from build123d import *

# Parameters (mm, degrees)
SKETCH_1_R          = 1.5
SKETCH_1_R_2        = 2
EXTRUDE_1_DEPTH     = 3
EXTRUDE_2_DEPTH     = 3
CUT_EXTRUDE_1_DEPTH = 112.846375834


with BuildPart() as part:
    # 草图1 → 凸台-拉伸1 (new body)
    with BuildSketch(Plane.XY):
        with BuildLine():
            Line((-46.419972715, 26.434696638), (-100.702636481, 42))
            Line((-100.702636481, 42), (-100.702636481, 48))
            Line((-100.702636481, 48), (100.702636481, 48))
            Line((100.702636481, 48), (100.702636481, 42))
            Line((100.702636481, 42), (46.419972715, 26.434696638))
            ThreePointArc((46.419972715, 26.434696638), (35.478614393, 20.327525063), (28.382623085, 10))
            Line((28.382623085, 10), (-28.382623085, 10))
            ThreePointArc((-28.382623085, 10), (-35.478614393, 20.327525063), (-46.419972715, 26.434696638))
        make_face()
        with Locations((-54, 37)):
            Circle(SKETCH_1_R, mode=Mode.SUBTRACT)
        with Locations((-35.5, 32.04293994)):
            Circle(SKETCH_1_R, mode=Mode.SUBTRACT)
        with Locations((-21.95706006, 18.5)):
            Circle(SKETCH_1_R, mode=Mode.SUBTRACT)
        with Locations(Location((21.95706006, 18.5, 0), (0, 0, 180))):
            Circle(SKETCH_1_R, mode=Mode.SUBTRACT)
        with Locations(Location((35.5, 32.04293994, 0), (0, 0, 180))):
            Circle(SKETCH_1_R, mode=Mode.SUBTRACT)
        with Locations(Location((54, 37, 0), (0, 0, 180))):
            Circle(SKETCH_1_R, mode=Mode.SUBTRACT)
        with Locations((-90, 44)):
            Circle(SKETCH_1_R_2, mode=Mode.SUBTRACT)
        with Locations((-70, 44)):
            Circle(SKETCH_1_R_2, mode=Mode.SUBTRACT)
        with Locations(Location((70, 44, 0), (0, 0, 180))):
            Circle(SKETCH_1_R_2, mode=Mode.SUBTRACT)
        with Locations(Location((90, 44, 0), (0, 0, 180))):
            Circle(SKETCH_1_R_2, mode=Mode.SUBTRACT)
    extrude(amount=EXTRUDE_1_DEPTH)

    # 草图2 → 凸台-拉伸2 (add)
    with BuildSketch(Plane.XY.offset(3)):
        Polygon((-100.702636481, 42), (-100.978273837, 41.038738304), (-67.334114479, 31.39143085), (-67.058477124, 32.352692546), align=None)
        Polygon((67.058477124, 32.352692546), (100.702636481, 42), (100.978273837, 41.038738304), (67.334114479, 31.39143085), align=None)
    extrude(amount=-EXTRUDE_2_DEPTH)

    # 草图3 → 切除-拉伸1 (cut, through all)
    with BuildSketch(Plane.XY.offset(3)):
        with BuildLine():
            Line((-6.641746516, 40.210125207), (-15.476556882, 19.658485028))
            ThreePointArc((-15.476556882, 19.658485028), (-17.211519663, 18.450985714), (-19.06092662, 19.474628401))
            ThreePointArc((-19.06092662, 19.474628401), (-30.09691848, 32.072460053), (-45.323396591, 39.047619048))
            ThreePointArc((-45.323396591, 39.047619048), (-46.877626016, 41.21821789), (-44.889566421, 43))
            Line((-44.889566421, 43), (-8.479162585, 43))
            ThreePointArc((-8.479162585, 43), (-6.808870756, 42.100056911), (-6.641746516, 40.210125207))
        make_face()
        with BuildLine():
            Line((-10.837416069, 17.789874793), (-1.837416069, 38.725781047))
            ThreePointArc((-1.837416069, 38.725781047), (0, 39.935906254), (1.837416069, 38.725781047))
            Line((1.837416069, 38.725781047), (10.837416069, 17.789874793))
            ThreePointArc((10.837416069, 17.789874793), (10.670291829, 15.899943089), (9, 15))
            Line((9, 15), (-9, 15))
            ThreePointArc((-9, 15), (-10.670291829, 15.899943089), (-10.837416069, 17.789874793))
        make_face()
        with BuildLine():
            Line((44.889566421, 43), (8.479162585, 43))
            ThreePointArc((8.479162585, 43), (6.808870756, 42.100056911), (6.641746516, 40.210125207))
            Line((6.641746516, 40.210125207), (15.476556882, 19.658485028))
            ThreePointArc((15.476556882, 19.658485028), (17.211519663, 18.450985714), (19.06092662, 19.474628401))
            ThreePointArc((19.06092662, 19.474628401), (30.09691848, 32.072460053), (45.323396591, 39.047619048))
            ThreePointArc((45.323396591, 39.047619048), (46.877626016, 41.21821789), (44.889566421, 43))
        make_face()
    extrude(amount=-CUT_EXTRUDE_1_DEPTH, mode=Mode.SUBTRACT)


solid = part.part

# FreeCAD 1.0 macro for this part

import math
import FreeCAD as App
import Part
import Sketcher
from FreeCAD import Vector
Q = App.Units.Quantity

doc = App.newDocument("Part")
body = doc.addObject("PartDesign::Body", "Body")

# Sketch on XY plane
sketch1 = body.newObject("Sketcher::SketchObject", "Sketch")
sketch1.AttachmentSupport = (doc.getObject("XY_Plane"), [""])
sketch1.MapMode = "FlatFace"
sketch1.addGeometry(Part.LineSegment(Vector(-100.702636, 42, 0), Vector(-46.419973, 26.434697, 0)), False)
sketch1.addGeometry(Part.ArcOfCircle(Part.Circle(Vector(-54, 0, 0), Vector(0, 0, 1), 27.5), math.radians(21.323686), math.radians(74)), False)
sketch1.addGeometry(Part.LineSegment(Vector(-28.382623, 10, 0), Vector(28.382623, 10, 0)), False)
sketch1.addGeometry(Part.ArcOfCircle(Part.Circle(Vector(54, 0, 0), Vector(0, 0, 1), 27.5), math.radians(106), math.radians(158.676314)), False)
sketch1.addGeometry(Part.LineSegment(Vector(46.419973, 26.434697, 0), Vector(100.702636, 42, 0)), False)
sketch1.addGeometry(Part.LineSegment(Vector(100.702636, 42, 0), Vector(100.702636, 48, 0)), False)
sketch1.addGeometry(Part.LineSegment(Vector(100.702636, 48, 0), Vector(-100.702636, 48, 0)), False)
sketch1.addGeometry(Part.LineSegment(Vector(-100.702636, 48, 0), Vector(-100.702636, 42, 0)), False)
sketch1.addGeometry(Part.Circle(Vector(21.95706, 18.5, 0), Vector(0, 0, 1), 1.5), False)
sketch1.addGeometry(Part.Circle(Vector(-21.95706, 18.5, 0), Vector(0, 0, 1), 1.5), False)
sketch1.addGeometry(Part.Circle(Vector(54, 37, 0), Vector(0, 0, 1), 1.5), False)
sketch1.addGeometry(Part.Circle(Vector(35.5, 32.04294, 0), Vector(0, 0, 1), 1.5), False)
sketch1.addGeometry(Part.Circle(Vector(90, 44, 0), Vector(0, 0, 1), 2), False)
sketch1.addGeometry(Part.Circle(Vector(70, 44, 0), Vector(0, 0, 1), 2), False)
sketch1.addGeometry(Part.Circle(Vector(-35.5, 32.04294, 0), Vector(0, 0, 1), 1.5), False)
sketch1.addGeometry(Part.Circle(Vector(-54, 37, 0), Vector(0, 0, 1), 1.5), False)
sketch1.addGeometry(Part.Circle(Vector(-70, 44, 0), Vector(0, 0, 1), 2), False)
sketch1.addGeometry(Part.Circle(Vector(-90, 44, 0), Vector(0, 0, 1), 2), False)
sketch1.addConstraint(Sketcher.Constraint("Tangent", 0, 2, 1, 2))
sketch1.addConstraint(Sketcher.Constraint("Coincident", 1, 1, 2, 1))
sketch1.addConstraint(Sketcher.Constraint("Coincident", 2, 2, 3, 2))
sketch1.addConstraint(Sketcher.Constraint("Tangent", 3, 1, 4, 1))
sketch1.addConstraint(Sketcher.Constraint("Coincident", 4, 2, 5, 1))
sketch1.addConstraint(Sketcher.Constraint("Coincident", 5, 2, 6, 1))
sketch1.addConstraint(Sketcher.Constraint("Coincident", 6, 2, 7, 1))
sketch1.addConstraint(Sketcher.Constraint("Coincident", 7, 2, 0, 1))
sketch1.addConstraint(Sketcher.Constraint("Horizontal", 2))
sketch1.addConstraint(Sketcher.Constraint("Vertical", 5))
sketch1.addConstraint(Sketcher.Constraint("Horizontal", 6))
sketch1.addConstraint(Sketcher.Constraint("Vertical", 7))
sketch1.addConstraint(Sketcher.Constraint("Equal", 1, 3))
sketch1.addConstraint(Sketcher.Constraint("Equal", 8, 9))
sketch1.addConstraint(Sketcher.Constraint("Equal", 9, 10))
sketch1.addConstraint(Sketcher.Constraint("Equal", 10, 11))
sketch1.addConstraint(Sketcher.Constraint("Equal", 12, 13))
sketch1.addConstraint(Sketcher.Constraint("Equal", 11, 14))
sketch1.addConstraint(Sketcher.Constraint("Equal", 14, 15))
sketch1.addConstraint(Sketcher.Constraint("Equal", 13, 16))
sketch1.addConstraint(Sketcher.Constraint("Equal", 16, 17))
sketch1.addConstraint(Sketcher.Constraint("Symmetric", 1, 3, 3, 3, -1, 1))
sketch1.addConstraint(Sketcher.Constraint("Symmetric", 8, 3, 9, 3, -2))
sketch1.addConstraint(Sketcher.Constraint("Symmetric", 11, 3, 14, 3, -2))
sketch1.addConstraint(Sketcher.Constraint("Symmetric", 10, 3, 15, 3, -2))
sketch1.addConstraint(Sketcher.Constraint("Symmetric", 13, 3, 16, 3, -2))
sketch1.addConstraint(Sketcher.Constraint("Symmetric", 12, 3, 17, 3, -2))
sketch1.addConstraint(Sketcher.Constraint("Symmetric", 0, 2, 3, 1, -2))
sketch1.addConstraint(Sketcher.Constraint("Horizontal", 12, 3, 13, 3))
sketch1.addConstraint(Sketcher.Constraint("Horizontal", 4, 2, 7, 2))
sketch1.addConstraint(Sketcher.Constraint("Vertical", 3, 3, 10, 3))
sketch1.addConstraint(Sketcher.Constraint("Diameter", 8, 3.0))
sketch1.addConstraint(Sketcher.Constraint("Diameter", 12, 4.0))
sketch1.addConstraint(Sketcher.Constraint("Radius", 1, 27.5))
sketch1.addConstraint(Sketcher.Constraint("DistanceY", 5, 1, 5, 2, 6.0))
sketch1.addConstraint(Sketcher.Constraint("Angle", 0, Q("-16 deg")))
sketch1.addConstraint(Sketcher.Constraint("DistanceX", 1, 3, -1, 1, 54.0))
sketch1.addConstraint(Sketcher.Constraint("DistanceY", -1, 1, 10, 3, 37.0))
sketch1.addConstraint(Sketcher.Constraint("DistanceX", -1, 1, 12, 3, 90.0))
sketch1.addConstraint(Sketcher.Constraint("DistanceY", -1, 1, 12, 3, 44.0))
sketch1.addConstraint(Sketcher.Constraint("DistanceX", -1, 1, 13, 3, 70.0))
sketch1.addConstraint(Sketcher.Constraint("DistanceY", -1, 1, 1, 1, 10.0))
sketch1.addConstraint(Sketcher.Constraint("DistanceY", -1, 1, 4, 2, 42.0))
sketch1.addConstraint(Sketcher.Constraint("DistanceX", 14, 3, 11, 3, 71.0))
sketch1.addConstraint(Sketcher.Constraint("DistanceY", -1, 1, 8, 3, 18.5))
sketch1.addConstraint(Sketcher.Constraint("DistanceX", -1, 1, 8, 3, 21.95706))
sketch1.addConstraint(Sketcher.Constraint("DistanceY", -1, 1, 11, 3, 32.04294))
pad1 = body.newObject("PartDesign::Pad", "Pad")
pad1.Profile = sketch1
pad1.Length = 3

# Sketch on XY plane
sketch2 = body.newObject("Sketcher::SketchObject", "Sketch001")
sketch2.AttachmentSupport = (doc.getObject("XY_Plane"), [""])
sketch2.MapMode = "FlatFace"
sketch2.AttachmentOffset = App.Placement(Vector(0, 0, 3), App.Rotation())
sketch2.addGeometry(Part.LineSegment(Vector(-100.702636, 42, 0), Vector(-100.978274, 41.038738, 0)), False)
sketch2.addGeometry(Part.LineSegment(Vector(-100.978274, 41.038738, 0), Vector(-67.334114, 31.391431, 0)), False)
sketch2.addGeometry(Part.LineSegment(Vector(-67.334114, 31.391431, 0), Vector(-67.058477, 32.352693, 0)), False)
sketch2.addGeometry(Part.LineSegment(Vector(-67.058477, 32.352693, 0), Vector(-100.702636, 42, 0)), False)
sketch2.addGeometry(Part.LineSegment(Vector(100.702636, 42, 0), Vector(67.058477, 32.352693, 0)), False)
sketch2.addGeometry(Part.LineSegment(Vector(67.058477, 32.352693, 0), Vector(67.334114, 31.391431, 0)), False)
sketch2.addGeometry(Part.LineSegment(Vector(67.334114, 31.391431, 0), Vector(100.978274, 41.038738, 0)), False)
sketch2.addGeometry(Part.LineSegment(Vector(100.978274, 41.038738, 0), Vector(100.702636, 42, 0)), False)
sketch2.addConstraint(Sketcher.Constraint("Coincident", 0, 2, 1, 1))
sketch2.addConstraint(Sketcher.Constraint("Coincident", 1, 2, 2, 1))
sketch2.addConstraint(Sketcher.Constraint("Coincident", 2, 2, 3, 1))
sketch2.addConstraint(Sketcher.Constraint("Coincident", 3, 2, 0, 1))
sketch2.addConstraint(Sketcher.Constraint("Coincident", 4, 2, 5, 1))
sketch2.addConstraint(Sketcher.Constraint("Coincident", 5, 2, 6, 1))
sketch2.addConstraint(Sketcher.Constraint("Coincident", 6, 2, 7, 1))
sketch2.addConstraint(Sketcher.Constraint("Coincident", 7, 2, 4, 1))
sketch2.addConstraint(Sketcher.Constraint("Symmetric", 2, 2, 4, 2, -2))
sketch2.addConstraint(Sketcher.Constraint("Symmetric", 1, 2, 5, 2, -2))
sketch2.addConstraint(Sketcher.Constraint("Symmetric", 0, 2, 6, 2, -2))
sketch2.addConstraint(Sketcher.Constraint("Symmetric", 3, 2, 7, 2, -2))
sketch2.addConstraint(Sketcher.Constraint("Perpendicular", 0, 1))
sketch2.addConstraint(Sketcher.Constraint("Perpendicular", 1, 2))
sketch2.addConstraint(Sketcher.Constraint("Perpendicular", 2, 3))
sketch2.addConstraint(Sketcher.Constraint("Angle", 0, Q("-106 deg")))
sketch2.addConstraint(Sketcher.Constraint("Distance", 0, 1.0))
sketch2.addConstraint(Sketcher.Constraint("Distance", 1, 35.0))
sketch2.addConstraint(Sketcher.Constraint("DistanceY", -1, 1, 3, 2, 42.0))
sketch2.addConstraint(Sketcher.Constraint("DistanceX", 1, 2, 4, 2, 134.392592))
pad2 = body.newObject("PartDesign::Pad", "Pad001")
pad2.Profile = sketch2
pad2.Length = 3
pad2.Reversed = True

# Sketch on XY plane
sketch3 = body.newObject("Sketcher::SketchObject", "Sketch002")
sketch3.AttachmentSupport = (doc.getObject("XY_Plane"), [""])
sketch3.MapMode = "FlatFace"
sketch3.AttachmentOffset = App.Placement(Vector(0, 0, 3), App.Rotation())
sketch3.addGeometry(Part.LineSegment(Vector(-15.476557, 19.658485, 0), Vector(-6.641747, 40.210125, 0)), False)
sketch3.addGeometry(Part.ArcOfCircle(Part.Circle(Vector(-8.479163, 41, 0), Vector(0, 0, 1), 2), math.radians(-23.26207), math.radians(90)), False)
sketch3.addGeometry(Part.LineSegment(Vector(-8.479163, 43, 0), Vector(-44.889566, 43, 0)), False)
sketch3.addGeometry(Part.ArcOfCircle(Part.Circle(Vector(-44.889566, 41, 0), Vector(0, 0, 1), 2), math.radians(90), math.radians(257.472095)), False)
sketch3.addGeometry(Part.ArcOfCircle(Part.Circle(Vector(-54, 0, 0), Vector(0, 0, 1), 40), math.radians(29.134781), math.radians(77.472095)), False)
sketch3.addGeometry(Part.ArcOfCircle(Part.Circle(Vector(-17.313973, 20.44836, 0), Vector(0, 0, 1), 2), math.radians(-150.865219), math.radians(-23.26207)), False)
sketch3.addGeometry(Part.LineSegment(Vector(-1.837416, 38.725781, 0), Vector(-10.837416, 17.789875, 0)), False)
sketch3.addGeometry(Part.ArcOfCircle(Part.Circle(Vector(-9, 17, 0), Vector(0, 0, 1), 2), math.radians(156.73793), math.radians(270)), False)
sketch3.addGeometry(Part.LineSegment(Vector(-9, 15, 0), Vector(9, 15, 0)), False)
sketch3.addGeometry(Part.ArcOfCircle(Part.Circle(Vector(9, 17, 0), Vector(0, 0, 1), 2), math.radians(-90), math.radians(23.26207)), False)
sketch3.addGeometry(Part.LineSegment(Vector(10.837416, 17.789875, 0), Vector(1.837416, 38.725781, 0)), False)
sketch3.addGeometry(Part.ArcOfCircle(Part.Circle(Vector(0, 37.935906, 0), Vector(0, 0, 1), 2), math.radians(23.26207), math.radians(156.73793)), False)
sketch3.addGeometry(Part.LineSegment(Vector(44.889566, 43, 0), Vector(8.479163, 43, 0)), False)
sketch3.addGeometry(Part.ArcOfCircle(Part.Circle(Vector(8.479163, 41, 0), Vector(0, 0, 1), 2), math.radians(90), math.radians(203.26207)), False)
sketch3.addGeometry(Part.LineSegment(Vector(6.641747, 40.210125, 0), Vector(15.476557, 19.658485, 0)), False)
sketch3.addGeometry(Part.ArcOfCircle(Part.Circle(Vector(17.313973, 20.44836, 0), Vector(0, 0, 1), 2), math.radians(-156.73793), math.radians(-29.134781)), False)
sketch3.addGeometry(Part.ArcOfCircle(Part.Circle(Vector(54, 0, 0), Vector(0, 0, 1), 40), math.radians(102.527905), math.radians(150.865219)), False)
sketch3.addGeometry(Part.ArcOfCircle(Part.Circle(Vector(44.889566, 41, 0), Vector(0, 0, 1), 2), math.radians(-77.472095), math.radians(90)), False)
sketch3.addConstraint(Sketcher.Constraint("Tangent", 0, 2, 1, 1))
sketch3.addConstraint(Sketcher.Constraint("Tangent", 1, 2, 2, 1))
sketch3.addConstraint(Sketcher.Constraint("Tangent", 2, 2, 3, 1))
sketch3.addConstraint(Sketcher.Constraint("Tangent", 3, 2, 4, 2))
sketch3.addConstraint(Sketcher.Constraint("Tangent", 4, 1, 5, 1))
sketch3.addConstraint(Sketcher.Constraint("Tangent", 5, 2, 0, 1))
sketch3.addConstraint(Sketcher.Constraint("Tangent", 6, 2, 7, 1))
sketch3.addConstraint(Sketcher.Constraint("Tangent", 7, 2, 8, 1))
sketch3.addConstraint(Sketcher.Constraint("Tangent", 8, 2, 9, 1))
sketch3.addConstraint(Sketcher.Constraint("Tangent", 9, 2, 10, 1))
sketch3.addConstraint(Sketcher.Constraint("Tangent", 10, 2, 11, 1))
sketch3.addConstraint(Sketcher.Constraint("Tangent", 11, 2, 6, 1))
sketch3.addConstraint(Sketcher.Constraint("Tangent", 12, 2, 13, 1))
sketch3.addConstraint(Sketcher.Constraint("Tangent", 13, 2, 14, 1))
sketch3.addConstraint(Sketcher.Constraint("Tangent", 14, 2, 15, 1))
sketch3.addConstraint(Sketcher.Constraint("Tangent", 15, 2, 16, 2))
sketch3.addConstraint(Sketcher.Constraint("Tangent", 16, 1, 17, 1))
sketch3.addConstraint(Sketcher.Constraint("Tangent", 17, 2, 12, 1))
sketch3.addConstraint(Sketcher.Constraint("Horizontal", 2))
sketch3.addConstraint(Sketcher.Constraint("Horizontal", 8))
sketch3.addConstraint(Sketcher.Constraint("Horizontal", 12))
sketch3.addConstraint(Sketcher.Constraint("Equal", 1, 3))
sketch3.addConstraint(Sketcher.Constraint("Equal", 3, 5))
sketch3.addConstraint(Sketcher.Constraint("Equal", 5, 7))
sketch3.addConstraint(Sketcher.Constraint("Equal", 7, 9))
sketch3.addConstraint(Sketcher.Constraint("Equal", 9, 11))
sketch3.addConstraint(Sketcher.Constraint("Equal", 11, 13))
sketch3.addConstraint(Sketcher.Constraint("Equal", 13, 15))
sketch3.addConstraint(Sketcher.Constraint("Equal", 4, 16))
sketch3.addConstraint(Sketcher.Constraint("Equal", 15, 17))
sketch3.addConstraint(Sketcher.Constraint("Symmetric", 4, 3, 16, 3, -1, 1))
sketch3.addConstraint(Sketcher.Constraint("Symmetric", 1, 3, 13, 3, -2))
sketch3.addConstraint(Sketcher.Constraint("Symmetric", 5, 3, 15, 3, -2))
sketch3.addConstraint(Sketcher.Constraint("Symmetric", 6, 2, 9, 2, -2))
sketch3.addConstraint(Sketcher.Constraint("Parallel", 0, 6))
sketch3.addConstraint(Sketcher.Constraint("Radius", 1, 2.0))
sketch3.addConstraint(Sketcher.Constraint("Radius", 4, 40.0))
sketch3.addConstraint(Sketcher.Constraint("DistanceX", 8, 1, 8, 2, 18.0))
sketch3.addConstraint(Sketcher.Constraint("DistanceY", -1, 1, 1, 3, 41.0))
sketch3.addConstraint(Sketcher.Constraint("DistanceX", 4, 3, -1, 1, 54.0))
sketch3.addConstraint(Sketcher.Constraint("DistanceY", -1, 1, 7, 3, 17.0))
sketch3.addConstraint(Sketcher.Constraint("Distance", 6, 22.788422))
sketch3.addConstraint(Sketcher.Constraint("DistanceX", 2, 2, 2, 1, 36.410404))
pocket1 = body.newObject("PartDesign::Pocket", "Pocket")
pocket1.Profile = sketch3
pocket1.Type = "ThroughAll"

doc.recompute()
